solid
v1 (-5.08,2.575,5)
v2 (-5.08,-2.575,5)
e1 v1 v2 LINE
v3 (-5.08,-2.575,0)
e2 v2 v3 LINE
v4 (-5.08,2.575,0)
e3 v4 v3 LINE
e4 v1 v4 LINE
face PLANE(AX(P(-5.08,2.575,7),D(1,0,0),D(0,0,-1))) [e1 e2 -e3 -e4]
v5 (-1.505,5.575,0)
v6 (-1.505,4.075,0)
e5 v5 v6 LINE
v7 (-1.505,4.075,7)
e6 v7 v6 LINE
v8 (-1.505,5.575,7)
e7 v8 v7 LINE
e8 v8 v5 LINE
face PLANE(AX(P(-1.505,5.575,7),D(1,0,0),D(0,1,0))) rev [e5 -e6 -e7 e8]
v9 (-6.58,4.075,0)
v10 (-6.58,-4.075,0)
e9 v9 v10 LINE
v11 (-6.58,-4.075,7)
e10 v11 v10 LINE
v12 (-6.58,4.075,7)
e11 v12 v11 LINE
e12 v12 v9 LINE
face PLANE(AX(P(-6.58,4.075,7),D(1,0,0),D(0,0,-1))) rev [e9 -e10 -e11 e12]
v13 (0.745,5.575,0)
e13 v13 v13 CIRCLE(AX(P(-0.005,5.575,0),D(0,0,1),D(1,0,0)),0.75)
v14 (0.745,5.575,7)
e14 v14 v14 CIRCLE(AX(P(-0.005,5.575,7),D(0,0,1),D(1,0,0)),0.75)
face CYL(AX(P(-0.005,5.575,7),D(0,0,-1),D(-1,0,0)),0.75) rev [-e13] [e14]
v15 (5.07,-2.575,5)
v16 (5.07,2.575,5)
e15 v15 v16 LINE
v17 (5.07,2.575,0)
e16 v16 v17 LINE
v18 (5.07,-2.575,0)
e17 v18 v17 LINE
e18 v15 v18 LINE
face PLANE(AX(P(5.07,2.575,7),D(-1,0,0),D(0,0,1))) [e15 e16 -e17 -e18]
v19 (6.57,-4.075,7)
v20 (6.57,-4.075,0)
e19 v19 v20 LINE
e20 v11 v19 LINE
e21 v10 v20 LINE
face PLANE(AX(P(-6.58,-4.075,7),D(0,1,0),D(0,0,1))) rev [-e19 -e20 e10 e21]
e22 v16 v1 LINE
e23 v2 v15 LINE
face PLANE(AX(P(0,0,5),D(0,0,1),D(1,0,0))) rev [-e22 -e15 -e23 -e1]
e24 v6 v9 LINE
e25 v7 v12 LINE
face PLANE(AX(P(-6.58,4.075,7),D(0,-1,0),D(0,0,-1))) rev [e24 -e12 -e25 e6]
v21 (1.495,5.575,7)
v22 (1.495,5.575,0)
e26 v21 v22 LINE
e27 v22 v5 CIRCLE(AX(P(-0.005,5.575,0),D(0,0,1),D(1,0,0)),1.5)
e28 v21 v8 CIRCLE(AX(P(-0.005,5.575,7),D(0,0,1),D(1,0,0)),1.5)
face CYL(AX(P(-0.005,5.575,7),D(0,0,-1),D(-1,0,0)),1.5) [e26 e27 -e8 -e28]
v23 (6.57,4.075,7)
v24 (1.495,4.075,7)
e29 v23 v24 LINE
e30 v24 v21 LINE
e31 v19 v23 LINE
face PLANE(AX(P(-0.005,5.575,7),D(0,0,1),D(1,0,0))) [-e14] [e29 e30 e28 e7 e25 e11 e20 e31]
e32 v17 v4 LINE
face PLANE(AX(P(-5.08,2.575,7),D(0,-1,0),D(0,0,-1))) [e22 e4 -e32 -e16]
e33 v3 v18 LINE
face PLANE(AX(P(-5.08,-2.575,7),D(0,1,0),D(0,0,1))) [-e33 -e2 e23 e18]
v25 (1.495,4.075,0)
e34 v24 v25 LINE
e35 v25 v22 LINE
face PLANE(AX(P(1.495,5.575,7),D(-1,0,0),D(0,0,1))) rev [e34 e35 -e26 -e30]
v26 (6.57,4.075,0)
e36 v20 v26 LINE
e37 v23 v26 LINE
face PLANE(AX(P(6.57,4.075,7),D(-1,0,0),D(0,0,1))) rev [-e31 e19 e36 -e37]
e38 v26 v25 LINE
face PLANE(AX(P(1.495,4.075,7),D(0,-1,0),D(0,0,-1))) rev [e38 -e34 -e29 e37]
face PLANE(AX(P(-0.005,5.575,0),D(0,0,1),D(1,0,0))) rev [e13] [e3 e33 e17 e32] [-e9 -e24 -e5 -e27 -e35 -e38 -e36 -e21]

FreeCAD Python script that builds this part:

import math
import FreeCAD as App
import Part
import Sketcher
Q = App.Units.Quantity

doc = App.newDocument("Part")
params = doc.addObject("Spreadsheet::Sheet", "Params")
for row, (alias, value) in enumerate([
    ("sketch1_diameter", "1.5 mm"),
    ("sketch1_radius", "1.5 mm"),
    ("sketch1_height", "1.5 mm"),
    ("sketch1_width", "13.15 mm"),
    ("sketch1_width2", "10.15 mm"),
    ("pad1_length", "7 mm"),
    ("sketch2_width", "13.15 mm"),
    ("sketch2_height", "8.15 mm"),
    ("pad2_length", "2 mm"),
], start=1):
    params.set(f"A{row}", alias)
    params.set(f"B{row}", "=" + value)
    params.setAlias(f"B{row}", alias)

body = doc.addObject("PartDesign::Body", "Body")

sketch1 = body.newObject("Sketcher::SketchObject", "Sketch")
sketch1.AttachmentSupport = (doc.getObject("XY_Plane"), [""])
sketch1.MapMode = "FlatFace"
sketch1.addGeometry(Part.LineSegment(App.Vector(-1.5, 4.1, 0), App.Vector(-6.6, 4.1, 0)), False)
sketch1.addGeometry(Part.LineSegment(App.Vector(-6.6, 4.1, 0), App.Vector(-6.6, -4.1, 0)), False)
sketch1.addGeometry(Part.LineSegment(App.Vector(-6.6, -4.1, 0), App.Vector(6.6, -4.1, 0)), False)
sketch1.addGeometry(Part.LineSegment(App.Vector(6.6, -4.1, 0), App.Vector(6.6, 4.1, 0)), False)
sketch1.addGeometry(Part.LineSegment(App.Vector(6.6, 4.1, 0), App.Vector(1.5, 4.1, 0)), False)
sketch1.addGeometry(Part.LineSegment(App.Vector(1.5, 4.1, 0), App.Vector(1.5, 5.6, 0)), False)
sketch1.addGeometry(Part.ArcOfCircle(Part.Circle(App.Vector(0, 5.6, 0), App.Vector(0, 0, 1), 1.5), math.radians(0), math.radians(180)), False)
sketch1.addGeometry(Part.LineSegment(App.Vector(-1.5, 5.6, 0), App.Vector(-1.5, 4.1, 0)), False)
sketch1.addGeometry(Part.LineSegment(App.Vector(-5.1, -2.6, 0), App.Vector(-5.1, 2.6, 0)), False)
sketch1.addGeometry(Part.LineSegment(App.Vector(-5.1, 2.6, 0), App.Vector(5.1, 2.6, 0)), False)
sketch1.addGeometry(Part.LineSegment(App.Vector(5.1, 2.6, 0), App.Vector(5.1, -2.6, 0)), False)
sketch1.addGeometry(Part.LineSegment(App.Vector(5.1, -2.6, 0), App.Vector(-5.1, -2.6, 0)), False)
sketch1.addGeometry(Part.Circle(App.Vector(0, 5.6, 0), App.Vector(0, 0, 1), 0.8), False)
sketch1.addConstraint(Sketcher.Constraint("Coincident", 0, 2, 1, 1))
sketch1.addConstraint(Sketcher.Constraint("Coincident", 1, 2, 2, 1))
sketch1.addConstraint(Sketcher.Constraint("Coincident", 2, 2, 3, 1))
sketch1.addConstraint(Sketcher.Constraint("Coincident", 3, 2, 4, 1))
sketch1.addConstraint(Sketcher.Constraint("Coincident", 4, 2, 5, 1))
sketch1.addConstraint(Sketcher.Constraint("Tangent", 5, 2, 6, 1))
sketch1.addConstraint(Sketcher.Constraint("Tangent", 6, 2, 7, 1))
sketch1.addConstraint(Sketcher.Constraint("Coincident", 7, 2, 0, 1))
sketch1.addConstraint(Sketcher.Constraint("Coincident", 8, 2, 9, 1))
sketch1.addConstraint(Sketcher.Constraint("Coincident", 9, 2, 10, 1))
sketch1.addConstraint(Sketcher.Constraint("Coincident", 10, 2, 11, 1))
sketch1.addConstraint(Sketcher.Constraint("Coincident", 11, 2, 8, 1))
sketch1.addConstraint(Sketcher.Constraint("Horizontal", 0))
sketch1.addConstraint(Sketcher.Constraint("Vertical", 1))
sketch1.addConstraint(Sketcher.Constraint("Horizontal", 2))
sketch1.addConstraint(Sketcher.Constraint("Vertical", 3))
sketch1.addConstraint(Sketcher.Constraint("Horizontal", 4))
sketch1.addConstraint(Sketcher.Constraint("Vertical", 5))
sketch1.addConstraint(Sketcher.Constraint("Vertical", 7))
sketch1.addConstraint(Sketcher.Constraint("Vertical", 8))
sketch1.addConstraint(Sketcher.Constraint("Horizontal", 9))
sketch1.addConstraint(Sketcher.Constraint("Vertical", 10))
sketch1.addConstraint(Sketcher.Constraint("Horizontal", 11))
sketch1.addConstraint(Sketcher.Constraint("Coincident", 12, 3, 6, 3))
sketch1.addConstraint(Sketcher.Constraint("Horizontal", 0, 2, 3, 2))
sketch1.addConstraint(Sketcher.Constraint("Equal", 0, 4))
sketch1.addConstraint(Sketcher.Constraint("Diameter", 12, Q("1.5 mm")))
sketch1.addConstraint(Sketcher.Constraint("Radius", 6, Q("1.5 mm")))
sketch1.addConstraint(Sketcher.Constraint("DistanceY", 5, 1, 5, 2, Q("1.5 mm")))
sketch1.addConstraint(Sketcher.Constraint("DistanceY", 8, 2, 6, 2, Q("3 mm")))
sketch1.addConstraint(Sketcher.Constraint("DistanceX", 2, 1, 2, 2, Q("13.15 mm")))
sketch1.addConstraint(Sketcher.Constraint("DistanceX", 9, 1, 9, 2, Q("10.15 mm")))
sketch1.addConstraint(Sketcher.Constraint("DistanceY", 1, 2, 1, 1, Q("8.15 mm")))
sketch1.addConstraint(Sketcher.Constraint("DistanceY", 8, 1, 8, 2, Q("5.15 mm")))
sketch1.addConstraint(Sketcher.Constraint("DistanceX", 0, 2, 8, 2, Q("1.5 mm")))
sketch1.addConstraint(Sketcher.Constraint("DistanceX", 0, 2, -1, 1, Q("6.58 mm")))
sketch1.addConstraint(Sketcher.Constraint("DistanceY", -1, 1, 6, 3, Q("5.575 mm")))
sketch1.setExpression("Constraints[26]", "Params.sketch1_diameter")
sketch1.setExpression("Constraints[27]", "Params.sketch1_radius")
sketch1.setExpression("Constraints[28]", "Params.sketch1_height")
sketch1.setExpression("Constraints[30]", "Params.sketch1_width")
sketch1.setExpression("Constraints[31]", "Params.sketch1_width2")
pad1 = body.newObject("PartDesign::Pad", "Pad")
pad1.Profile = sketch1
pad1.setExpression("Length", "Params.pad1_length")

sketch2 = body.newObject("Sketcher::SketchObject", "Sketch001")
sketch2.AttachmentSupport = (doc.getObject("XY_Plane"), [""])
sketch2.MapMode = "FlatFace"
sketch2.AttachmentOffset = App.Placement(App.Vector(0, 0, 7), App.Rotation())
sketch2.addGeometry(Part.LineSegment(App.Vector(-7, 4, 0), App.Vector(-7, -4, 0)), False)
sketch2.addGeometry(Part.LineSegment(App.Vector(-7, -4, 0), App.Vector(7, -4, 0)), False)
sketch2.addGeometry(Part.LineSegment(App.Vector(7, -4, 0), App.Vector(7, 4, 0)), False)
sketch2.addGeometry(Part.LineSegment(App.Vector(7, 4, 0), App.Vector(-7, 4, 0)), False)
sketch2.addConstraint(Sketcher.Constraint("Coincident", 0, 2, 1, 1))
sketch2.addConstraint(Sketcher.Constraint("Coincident", 1, 2, 2, 1))
sketch2.addConstraint(Sketcher.Constraint("Coincident", 2, 2, 3, 1))
sketch2.addConstraint(Sketcher.Constraint("Coincident", 3, 2, 0, 1))
sketch2.addConstraint(Sketcher.Constraint("Vertical", 0))
sketch2.addConstraint(Sketcher.Constraint("Horizontal", 1))
sketch2.addConstraint(Sketcher.Constraint("Vertical", 2))
sketch2.addConstraint(Sketcher.Constraint("Horizontal", 3))
sketch2.addConstraint(Sketcher.Constraint("DistanceX", 1, 1, 1, 2, Q("13.15 mm")))
sketch2.addConstraint(Sketcher.Constraint("DistanceY", 0, 2, 0, 1, Q("8.15 mm")))
sketch2.addConstraint(Sketcher.Constraint("DistanceX", 0, 2, -1, 1, Q("6.58 mm")))
sketch2.addConstraint(Sketcher.Constraint("DistanceY", 0, 2, -1, 1, Q("4.075 mm")))
sketch2.setExpression("Constraints[8]", "Params.sketch2_width")
sketch2.setExpression("Constraints[9]", "Params.sketch2_height")
pad2 = body.newObject("PartDesign::Pad", "Pad001")
pad2.Profile = sketch2
pad2.setExpression("Length", "Params.pad2_length")
pad2.Reversed = True

doc.recompute()
